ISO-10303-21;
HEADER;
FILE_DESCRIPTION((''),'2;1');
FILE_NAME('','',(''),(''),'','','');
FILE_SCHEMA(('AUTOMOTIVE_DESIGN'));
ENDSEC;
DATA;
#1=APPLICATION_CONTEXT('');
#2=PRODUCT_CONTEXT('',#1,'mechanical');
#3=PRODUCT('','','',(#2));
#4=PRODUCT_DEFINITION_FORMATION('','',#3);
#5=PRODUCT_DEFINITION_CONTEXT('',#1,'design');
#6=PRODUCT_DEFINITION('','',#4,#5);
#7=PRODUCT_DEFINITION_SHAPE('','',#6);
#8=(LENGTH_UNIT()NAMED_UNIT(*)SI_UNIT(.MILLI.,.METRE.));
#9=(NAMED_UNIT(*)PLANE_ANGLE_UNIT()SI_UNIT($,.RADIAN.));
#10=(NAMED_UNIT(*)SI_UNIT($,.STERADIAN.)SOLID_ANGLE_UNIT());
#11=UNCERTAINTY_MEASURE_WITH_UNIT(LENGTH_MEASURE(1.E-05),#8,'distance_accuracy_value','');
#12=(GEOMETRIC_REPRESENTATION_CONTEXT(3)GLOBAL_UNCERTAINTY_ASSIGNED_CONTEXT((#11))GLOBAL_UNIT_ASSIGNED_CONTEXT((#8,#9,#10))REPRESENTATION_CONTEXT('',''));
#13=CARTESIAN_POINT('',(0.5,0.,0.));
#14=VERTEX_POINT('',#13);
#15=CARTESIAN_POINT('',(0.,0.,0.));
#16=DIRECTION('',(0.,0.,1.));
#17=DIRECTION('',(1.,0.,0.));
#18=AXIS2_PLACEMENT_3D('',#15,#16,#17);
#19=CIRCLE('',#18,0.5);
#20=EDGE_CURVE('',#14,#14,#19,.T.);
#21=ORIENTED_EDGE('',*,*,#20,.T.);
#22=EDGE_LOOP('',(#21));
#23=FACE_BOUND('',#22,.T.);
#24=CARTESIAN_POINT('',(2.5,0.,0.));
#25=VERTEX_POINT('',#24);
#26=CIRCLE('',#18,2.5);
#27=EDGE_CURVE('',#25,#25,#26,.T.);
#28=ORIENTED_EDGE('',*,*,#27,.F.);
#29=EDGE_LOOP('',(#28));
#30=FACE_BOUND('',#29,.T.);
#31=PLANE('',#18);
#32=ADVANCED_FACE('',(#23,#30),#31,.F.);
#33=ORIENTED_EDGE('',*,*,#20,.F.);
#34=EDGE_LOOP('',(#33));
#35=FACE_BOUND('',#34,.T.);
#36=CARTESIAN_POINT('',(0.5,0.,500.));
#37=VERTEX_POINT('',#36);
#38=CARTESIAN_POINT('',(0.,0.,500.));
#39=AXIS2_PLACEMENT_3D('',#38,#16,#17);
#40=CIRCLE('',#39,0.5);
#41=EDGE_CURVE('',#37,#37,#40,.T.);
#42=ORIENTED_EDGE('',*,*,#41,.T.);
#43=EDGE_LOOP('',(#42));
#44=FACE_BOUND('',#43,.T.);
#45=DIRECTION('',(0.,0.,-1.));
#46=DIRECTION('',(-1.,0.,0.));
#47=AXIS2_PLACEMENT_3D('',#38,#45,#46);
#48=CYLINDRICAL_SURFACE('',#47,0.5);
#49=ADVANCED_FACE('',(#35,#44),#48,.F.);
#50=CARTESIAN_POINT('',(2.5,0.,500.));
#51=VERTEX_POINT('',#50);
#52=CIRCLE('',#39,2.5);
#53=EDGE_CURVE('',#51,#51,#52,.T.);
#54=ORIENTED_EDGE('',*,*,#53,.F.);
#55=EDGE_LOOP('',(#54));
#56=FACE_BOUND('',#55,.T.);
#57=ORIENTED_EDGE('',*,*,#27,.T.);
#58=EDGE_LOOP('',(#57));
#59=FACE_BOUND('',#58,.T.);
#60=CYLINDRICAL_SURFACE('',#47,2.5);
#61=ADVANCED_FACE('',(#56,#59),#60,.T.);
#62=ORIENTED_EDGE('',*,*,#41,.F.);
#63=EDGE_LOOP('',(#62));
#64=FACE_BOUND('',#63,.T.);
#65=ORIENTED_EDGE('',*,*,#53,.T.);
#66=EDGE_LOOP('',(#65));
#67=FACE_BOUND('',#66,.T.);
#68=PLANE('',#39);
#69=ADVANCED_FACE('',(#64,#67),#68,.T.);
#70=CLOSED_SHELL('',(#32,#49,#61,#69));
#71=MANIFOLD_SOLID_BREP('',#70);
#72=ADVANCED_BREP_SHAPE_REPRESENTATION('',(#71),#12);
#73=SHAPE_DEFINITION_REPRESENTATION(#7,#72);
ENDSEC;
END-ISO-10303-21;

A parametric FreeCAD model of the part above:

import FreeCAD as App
import Part
import Sketcher

doc = App.newDocument("Part")
body = doc.addObject("PartDesign::Body", "Body")

sketch1 = doc.addObject("Sketcher::SketchObject", "Sketch")
body.addObject(sketch1)
sketch1.AttachmentSupport = (doc.XY_Plane, [""])
sketch1.MapMode = "FlatFace"
sketch1.addGeometry([
    Part.Circle(App.Vector(0, 0, 0), App.Vector(0, 0, 1), 2.5),
    Part.Circle(App.Vector(0, 0, 0), App.Vector(0, 0, 1), 0.5),
], False)
sketch1.addConstraint([
    Sketcher.Constraint("Coincident", 0, 3, -1, 1),
    Sketcher.Constraint("Coincident", 1, 3, -1, 1),
    Sketcher.Constraint("Diameter", 0, 5.0),
    Sketcher.Constraint("Diameter", 1, 1.0),
])
pad1 = doc.addObject("PartDesign::Pad", "Pad")
body.addObject(pad1)
pad1.Profile = sketch1
pad1.Length = 500

doc.recompute()
